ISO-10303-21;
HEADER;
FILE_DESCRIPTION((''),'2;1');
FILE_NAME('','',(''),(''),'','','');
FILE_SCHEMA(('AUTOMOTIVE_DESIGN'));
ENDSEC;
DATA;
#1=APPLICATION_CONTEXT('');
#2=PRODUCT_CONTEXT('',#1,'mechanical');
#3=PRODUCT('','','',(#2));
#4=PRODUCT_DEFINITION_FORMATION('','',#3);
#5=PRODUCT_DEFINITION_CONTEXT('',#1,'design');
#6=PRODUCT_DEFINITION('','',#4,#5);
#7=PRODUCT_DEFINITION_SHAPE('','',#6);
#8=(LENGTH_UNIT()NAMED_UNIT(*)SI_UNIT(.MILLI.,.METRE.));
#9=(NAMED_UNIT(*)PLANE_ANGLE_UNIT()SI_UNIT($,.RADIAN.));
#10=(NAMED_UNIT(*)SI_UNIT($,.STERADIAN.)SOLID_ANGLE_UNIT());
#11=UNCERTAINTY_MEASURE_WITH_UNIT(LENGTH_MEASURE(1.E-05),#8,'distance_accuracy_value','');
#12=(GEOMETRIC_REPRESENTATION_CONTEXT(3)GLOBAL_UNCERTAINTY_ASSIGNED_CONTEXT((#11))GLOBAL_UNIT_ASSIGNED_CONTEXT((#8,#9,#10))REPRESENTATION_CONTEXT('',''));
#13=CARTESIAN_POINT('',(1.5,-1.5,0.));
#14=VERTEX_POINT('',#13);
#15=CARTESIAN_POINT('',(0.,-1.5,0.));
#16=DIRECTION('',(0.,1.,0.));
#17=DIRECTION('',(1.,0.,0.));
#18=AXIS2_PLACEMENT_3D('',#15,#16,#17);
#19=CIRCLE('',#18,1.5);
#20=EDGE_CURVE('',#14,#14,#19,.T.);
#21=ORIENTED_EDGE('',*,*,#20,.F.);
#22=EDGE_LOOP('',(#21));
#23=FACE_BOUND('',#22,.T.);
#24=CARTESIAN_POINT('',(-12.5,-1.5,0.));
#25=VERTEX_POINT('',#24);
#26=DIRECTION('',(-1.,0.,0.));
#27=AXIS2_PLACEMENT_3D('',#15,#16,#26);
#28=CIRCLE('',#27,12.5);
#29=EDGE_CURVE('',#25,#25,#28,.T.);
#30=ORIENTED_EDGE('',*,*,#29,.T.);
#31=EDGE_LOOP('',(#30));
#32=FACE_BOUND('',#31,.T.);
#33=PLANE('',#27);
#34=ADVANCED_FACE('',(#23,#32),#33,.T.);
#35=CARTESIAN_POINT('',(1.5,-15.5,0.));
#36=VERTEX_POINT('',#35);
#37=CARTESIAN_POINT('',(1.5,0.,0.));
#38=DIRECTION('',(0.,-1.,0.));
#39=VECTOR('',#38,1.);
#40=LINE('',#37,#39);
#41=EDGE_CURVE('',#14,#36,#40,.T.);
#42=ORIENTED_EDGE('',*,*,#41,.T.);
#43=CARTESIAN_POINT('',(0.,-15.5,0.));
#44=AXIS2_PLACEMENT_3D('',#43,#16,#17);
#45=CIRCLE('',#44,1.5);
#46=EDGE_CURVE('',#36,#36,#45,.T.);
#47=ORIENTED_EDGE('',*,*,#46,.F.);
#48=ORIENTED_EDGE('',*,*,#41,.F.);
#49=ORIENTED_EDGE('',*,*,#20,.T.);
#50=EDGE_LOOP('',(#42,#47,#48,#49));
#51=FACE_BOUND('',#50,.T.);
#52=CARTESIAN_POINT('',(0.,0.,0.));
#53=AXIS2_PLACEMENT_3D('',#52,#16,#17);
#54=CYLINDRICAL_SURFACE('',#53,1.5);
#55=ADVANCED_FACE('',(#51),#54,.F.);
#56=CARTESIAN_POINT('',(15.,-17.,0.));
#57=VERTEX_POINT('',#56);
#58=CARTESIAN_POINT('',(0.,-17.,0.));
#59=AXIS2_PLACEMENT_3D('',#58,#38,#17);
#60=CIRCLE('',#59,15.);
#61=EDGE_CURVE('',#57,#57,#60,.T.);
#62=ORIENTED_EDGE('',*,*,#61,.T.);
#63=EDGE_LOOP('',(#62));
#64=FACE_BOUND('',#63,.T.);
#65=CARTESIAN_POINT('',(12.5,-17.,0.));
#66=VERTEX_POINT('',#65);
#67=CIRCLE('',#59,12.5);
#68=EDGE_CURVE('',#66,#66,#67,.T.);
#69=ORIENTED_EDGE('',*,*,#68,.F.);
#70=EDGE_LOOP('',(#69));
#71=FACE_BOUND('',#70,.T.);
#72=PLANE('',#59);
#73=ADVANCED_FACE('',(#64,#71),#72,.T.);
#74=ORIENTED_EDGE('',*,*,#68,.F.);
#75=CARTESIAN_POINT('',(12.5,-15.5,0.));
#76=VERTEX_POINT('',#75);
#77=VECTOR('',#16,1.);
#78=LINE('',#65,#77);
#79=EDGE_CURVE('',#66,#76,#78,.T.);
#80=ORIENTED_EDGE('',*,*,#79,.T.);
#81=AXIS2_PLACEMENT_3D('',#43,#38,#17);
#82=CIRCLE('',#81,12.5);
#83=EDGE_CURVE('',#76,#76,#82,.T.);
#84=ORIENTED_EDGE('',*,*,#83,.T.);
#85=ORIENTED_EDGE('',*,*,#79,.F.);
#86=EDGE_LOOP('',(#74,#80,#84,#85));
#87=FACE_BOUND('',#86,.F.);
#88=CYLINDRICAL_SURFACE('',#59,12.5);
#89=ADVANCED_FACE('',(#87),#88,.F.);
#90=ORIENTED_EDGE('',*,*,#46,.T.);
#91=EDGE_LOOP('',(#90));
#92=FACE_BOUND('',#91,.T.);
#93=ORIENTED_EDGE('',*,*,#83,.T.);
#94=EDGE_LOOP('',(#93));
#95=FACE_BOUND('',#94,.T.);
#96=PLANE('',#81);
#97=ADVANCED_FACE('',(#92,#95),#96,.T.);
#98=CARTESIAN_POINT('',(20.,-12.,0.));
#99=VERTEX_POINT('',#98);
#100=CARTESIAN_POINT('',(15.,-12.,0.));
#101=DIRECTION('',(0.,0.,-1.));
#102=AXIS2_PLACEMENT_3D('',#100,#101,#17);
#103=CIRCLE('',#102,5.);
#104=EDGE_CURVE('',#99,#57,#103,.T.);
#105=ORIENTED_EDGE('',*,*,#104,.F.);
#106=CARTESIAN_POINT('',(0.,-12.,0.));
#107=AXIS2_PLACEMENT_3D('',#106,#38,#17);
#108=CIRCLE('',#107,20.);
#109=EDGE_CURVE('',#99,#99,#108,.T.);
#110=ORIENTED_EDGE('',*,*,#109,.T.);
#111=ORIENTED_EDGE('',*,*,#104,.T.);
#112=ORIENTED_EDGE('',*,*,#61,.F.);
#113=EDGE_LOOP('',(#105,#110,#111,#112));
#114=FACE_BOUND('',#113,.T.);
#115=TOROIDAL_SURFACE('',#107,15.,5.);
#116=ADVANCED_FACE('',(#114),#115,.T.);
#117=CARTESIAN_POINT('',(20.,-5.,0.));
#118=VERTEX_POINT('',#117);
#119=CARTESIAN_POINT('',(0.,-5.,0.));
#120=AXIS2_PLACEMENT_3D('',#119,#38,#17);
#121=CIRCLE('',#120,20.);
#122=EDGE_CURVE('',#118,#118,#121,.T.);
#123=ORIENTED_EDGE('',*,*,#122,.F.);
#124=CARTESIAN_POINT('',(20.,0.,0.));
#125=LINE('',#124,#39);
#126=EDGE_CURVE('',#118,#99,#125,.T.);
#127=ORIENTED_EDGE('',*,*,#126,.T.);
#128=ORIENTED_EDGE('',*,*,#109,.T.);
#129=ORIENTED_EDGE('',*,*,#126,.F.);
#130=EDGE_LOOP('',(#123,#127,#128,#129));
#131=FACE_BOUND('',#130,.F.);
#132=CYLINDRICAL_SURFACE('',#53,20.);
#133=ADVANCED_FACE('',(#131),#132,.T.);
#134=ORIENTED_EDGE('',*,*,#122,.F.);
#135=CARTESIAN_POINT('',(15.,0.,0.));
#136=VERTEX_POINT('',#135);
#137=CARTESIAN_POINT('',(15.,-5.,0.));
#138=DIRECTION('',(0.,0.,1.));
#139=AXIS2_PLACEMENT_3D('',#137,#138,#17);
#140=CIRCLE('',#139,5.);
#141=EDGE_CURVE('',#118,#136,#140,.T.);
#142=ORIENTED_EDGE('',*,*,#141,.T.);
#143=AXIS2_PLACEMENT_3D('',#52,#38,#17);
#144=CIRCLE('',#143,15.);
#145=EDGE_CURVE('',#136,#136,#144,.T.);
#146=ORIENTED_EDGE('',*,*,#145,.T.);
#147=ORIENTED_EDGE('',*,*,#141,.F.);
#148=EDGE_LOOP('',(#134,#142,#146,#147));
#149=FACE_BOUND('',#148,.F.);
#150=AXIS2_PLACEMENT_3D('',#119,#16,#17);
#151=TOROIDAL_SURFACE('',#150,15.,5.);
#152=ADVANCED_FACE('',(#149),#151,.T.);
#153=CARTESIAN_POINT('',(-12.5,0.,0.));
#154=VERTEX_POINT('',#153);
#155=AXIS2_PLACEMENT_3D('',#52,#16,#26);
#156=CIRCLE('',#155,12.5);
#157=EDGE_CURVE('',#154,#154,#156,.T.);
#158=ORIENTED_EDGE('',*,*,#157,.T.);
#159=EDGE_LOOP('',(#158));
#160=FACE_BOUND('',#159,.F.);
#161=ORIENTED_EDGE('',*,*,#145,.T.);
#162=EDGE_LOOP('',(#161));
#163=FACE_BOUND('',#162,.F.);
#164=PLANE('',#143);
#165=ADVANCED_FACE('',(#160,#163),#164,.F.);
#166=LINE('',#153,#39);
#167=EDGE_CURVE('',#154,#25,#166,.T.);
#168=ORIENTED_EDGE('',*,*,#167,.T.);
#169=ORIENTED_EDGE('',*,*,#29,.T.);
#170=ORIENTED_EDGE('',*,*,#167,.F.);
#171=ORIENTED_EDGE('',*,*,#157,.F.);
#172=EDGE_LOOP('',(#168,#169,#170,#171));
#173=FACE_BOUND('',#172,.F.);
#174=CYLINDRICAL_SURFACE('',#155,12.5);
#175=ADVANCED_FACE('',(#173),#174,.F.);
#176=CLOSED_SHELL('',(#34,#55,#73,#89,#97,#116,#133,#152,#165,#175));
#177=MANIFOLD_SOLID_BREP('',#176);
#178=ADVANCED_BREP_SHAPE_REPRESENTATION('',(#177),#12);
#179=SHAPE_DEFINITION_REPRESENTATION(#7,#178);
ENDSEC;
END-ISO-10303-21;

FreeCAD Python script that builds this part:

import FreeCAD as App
import Part
import Sketcher
from FreeCAD import Vector
Q = App.Units.Quantity


def edges_at(feature, points):
    """Names of the edges that pass closest to the given points."""
    edges = feature.Shape.Edges
    near = lambda p: min(range(len(edges)), key=lambda i: edges[i].distToShape(Part.Vertex(*p))[0])
    return sorted({f"Edge{near(p) + 1}" for p in points})

doc = App.newDocument("Part")
body = doc.addObject("PartDesign::Body", "Body")

# Sketch on XZ plane
sketch1 = doc.addObject("Sketcher::SketchObject", "Sketch")
body.addObject(sketch1)
sketch1.AttachmentSupport = (doc.XZ_Plane, [""])
sketch1.MapMode = "FlatFace"
sketch1.addGeometry(Part.Circle(Vector(0, 0, 0), Vector(0, 0, 1), 20), False)
sketch1.addGeometry(Part.Circle(Vector(0, 0, 0), Vector(0, 0, 1), 1.5), False)
sketch1.addConstraint(Sketcher.Constraint("Coincident", 0, 3, -1, 1))
sketch1.addConstraint(Sketcher.Constraint("Coincident", 1, 3, -1, 1))
sketch1.addConstraint(Sketcher.Constraint("Diameter", 0, Q("40 mm")))
sketch1.addConstraint(Sketcher.Constraint("Diameter", 1, Q("3 mm")))
pad1 = doc.addObject("PartDesign::Pad", "Pad")
body.addObject(pad1)
pad1.Profile = sketch1
pad1.Length = 17

# Sketch on XZ plane
sketch2 = doc.addObject("Sketcher::SketchObject", "Sketch001")
body.addObject(sketch2)
sketch2.AttachmentSupport = (doc.XZ_Plane, [""])
sketch2.MapMode = "FlatFace"
sketch2.AttachmentOffset = App.Placement(Vector(0, 0, 17), App.Rotation())
sketch2.addGeometry(Part.Circle(Vector(0, 0, 0), Vector(0, 0, 1), 12), False)
sketch2.addConstraint(Sketcher.Constraint("Coincident", 0, 3, -1, 1))
sketch2.addConstraint(Sketcher.Constraint("Diameter", 0, Q("25 mm")))
pocket1 = doc.addObject("PartDesign::Pocket", "Pocket")
body.addObject(pocket1)
pocket1.Profile = sketch2
pocket1.Length = 1.5

# Sketch on XZ plane
sketch3 = doc.addObject("Sketcher::SketchObject", "Sketch002")
body.addObject(sketch3)
sketch3.AttachmentSupport = (doc.XZ_Plane, [""])
sketch3.MapMode = "FlatFace"
sketch3.addGeometry(Part.Circle(Vector(0, 0, 0), Vector(0, 0, 1), 12), False)
sketch3.addConstraint(Sketcher.Constraint("Coincident", 0, 3, -1, 1))
sketch3.addConstraint(Sketcher.Constraint("Diameter", 0, Q("25 mm")))
pocket2 = doc.addObject("PartDesign::Pocket", "Pocket001")
body.addObject(pocket2)
pocket2.Profile = sketch3
pocket2.Length = 1.5
pocket2.Reversed = True
doc.recompute()

fillet = doc.addObject("PartDesign::Fillet", "Fillet")
body.addObject(fillet)
fillet.Base = (pocket2, edges_at(pocket2, [(-20, 0, 0), (-20, -17, 0)]))
fillet.Radius = 5

doc.recompute()
